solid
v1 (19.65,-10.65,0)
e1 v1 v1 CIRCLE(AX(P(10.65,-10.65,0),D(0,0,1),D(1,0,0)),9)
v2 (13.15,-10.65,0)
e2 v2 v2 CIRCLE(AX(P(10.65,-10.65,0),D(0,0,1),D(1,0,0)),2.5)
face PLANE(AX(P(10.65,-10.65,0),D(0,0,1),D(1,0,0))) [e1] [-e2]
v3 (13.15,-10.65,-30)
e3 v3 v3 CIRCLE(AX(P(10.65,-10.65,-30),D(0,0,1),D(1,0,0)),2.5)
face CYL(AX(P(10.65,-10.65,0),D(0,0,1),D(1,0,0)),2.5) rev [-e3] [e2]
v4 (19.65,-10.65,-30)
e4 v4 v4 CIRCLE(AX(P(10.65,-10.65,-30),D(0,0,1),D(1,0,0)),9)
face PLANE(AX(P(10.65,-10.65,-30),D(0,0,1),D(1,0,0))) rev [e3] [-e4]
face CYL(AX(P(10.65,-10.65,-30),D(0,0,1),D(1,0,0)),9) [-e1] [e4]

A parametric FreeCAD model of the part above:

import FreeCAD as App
import Part
import Sketcher

doc = App.newDocument("Part")
params = doc.addObject("Spreadsheet::Sheet", "Params")
for row, (alias, value) in enumerate([
    ("sketch1_diameter", "18 mm"),
    ("pad1_length", "30 mm"),
    ("sketch2_diameter", "5 mm"),
    ("hole_diameter", "5 mm"),
    ("hole_depth", "40 mm"),
], start=1):
    params.set(f"A{row}", alias)
    params.set(f"B{row}", "=" + value)
    params.setAlias(f"B{row}", alias)

body = doc.addObject("PartDesign::Body", "Body")

# Sketch on XY plane
sketch1 = doc.addObject("Sketcher::SketchObject", "Sketch")
body.addObject(sketch1)
sketch1.AttachmentSupport = (doc.XY_Plane, [""])
sketch1.MapMode = "FlatFace"
sketch1.addGeometry(Part.Circle(App.Vector(10.65, -10.65, 0), App.Vector(0, 0, 1), 9), False)
sketch1.addConstraint(Sketcher.Constraint("Diameter", 0, 18.0))
sketch1.addConstraint(Sketcher.Constraint("DistanceX", -1, 1, 0, 3, 10.65))
sketch1.addConstraint(Sketcher.Constraint("DistanceY", 0, 3, -1, 1, 10.65))
sketch1.setExpression("Constraints[0]", "Params.sketch1_diameter")
pad1 = doc.addObject("PartDesign::Pad", "Pad")
body.addObject(pad1)
pad1.Profile = sketch1
pad1.setExpression("Length", "Params.pad1_length")
pad1.Reversed = True

# Sketch on XY plane
sketch2 = doc.addObject("Sketcher::SketchObject", "Sketch001")
body.addObject(sketch2)
sketch2.AttachmentSupport = (doc.XY_Plane, [""])
sketch2.MapMode = "FlatFace"
sketch2.addGeometry(Part.Circle(App.Vector(10.65, -10.65, 0), App.Vector(0, 0, 1), 2.5), False)
sketch2.addConstraint(Sketcher.Constraint("Diameter", 0, 5.0))
sketch2.addConstraint(Sketcher.Constraint("DistanceX", -1, 1, 0, 3, 10.65))
sketch2.addConstraint(Sketcher.Constraint("DistanceY", 0, 3, -1, 1, 10.65))
sketch2.setExpression("Constraints[0]", "Params.sketch2_diameter")
doc.recompute()
hole = doc.addObject("PartDesign::Hole", "Hole")
body.addObject(hole)
hole.Profile = sketch2
hole.ThreadType = "None"
hole.setExpression("Diameter", "Params.hole_diameter")
hole.DepthType = "Dimension"
hole.setExpression("Depth", "Params.hole_depth")
hole.DrillPoint = "Angled"
hole.DrillPointAngle = 118

doc.recompute()
